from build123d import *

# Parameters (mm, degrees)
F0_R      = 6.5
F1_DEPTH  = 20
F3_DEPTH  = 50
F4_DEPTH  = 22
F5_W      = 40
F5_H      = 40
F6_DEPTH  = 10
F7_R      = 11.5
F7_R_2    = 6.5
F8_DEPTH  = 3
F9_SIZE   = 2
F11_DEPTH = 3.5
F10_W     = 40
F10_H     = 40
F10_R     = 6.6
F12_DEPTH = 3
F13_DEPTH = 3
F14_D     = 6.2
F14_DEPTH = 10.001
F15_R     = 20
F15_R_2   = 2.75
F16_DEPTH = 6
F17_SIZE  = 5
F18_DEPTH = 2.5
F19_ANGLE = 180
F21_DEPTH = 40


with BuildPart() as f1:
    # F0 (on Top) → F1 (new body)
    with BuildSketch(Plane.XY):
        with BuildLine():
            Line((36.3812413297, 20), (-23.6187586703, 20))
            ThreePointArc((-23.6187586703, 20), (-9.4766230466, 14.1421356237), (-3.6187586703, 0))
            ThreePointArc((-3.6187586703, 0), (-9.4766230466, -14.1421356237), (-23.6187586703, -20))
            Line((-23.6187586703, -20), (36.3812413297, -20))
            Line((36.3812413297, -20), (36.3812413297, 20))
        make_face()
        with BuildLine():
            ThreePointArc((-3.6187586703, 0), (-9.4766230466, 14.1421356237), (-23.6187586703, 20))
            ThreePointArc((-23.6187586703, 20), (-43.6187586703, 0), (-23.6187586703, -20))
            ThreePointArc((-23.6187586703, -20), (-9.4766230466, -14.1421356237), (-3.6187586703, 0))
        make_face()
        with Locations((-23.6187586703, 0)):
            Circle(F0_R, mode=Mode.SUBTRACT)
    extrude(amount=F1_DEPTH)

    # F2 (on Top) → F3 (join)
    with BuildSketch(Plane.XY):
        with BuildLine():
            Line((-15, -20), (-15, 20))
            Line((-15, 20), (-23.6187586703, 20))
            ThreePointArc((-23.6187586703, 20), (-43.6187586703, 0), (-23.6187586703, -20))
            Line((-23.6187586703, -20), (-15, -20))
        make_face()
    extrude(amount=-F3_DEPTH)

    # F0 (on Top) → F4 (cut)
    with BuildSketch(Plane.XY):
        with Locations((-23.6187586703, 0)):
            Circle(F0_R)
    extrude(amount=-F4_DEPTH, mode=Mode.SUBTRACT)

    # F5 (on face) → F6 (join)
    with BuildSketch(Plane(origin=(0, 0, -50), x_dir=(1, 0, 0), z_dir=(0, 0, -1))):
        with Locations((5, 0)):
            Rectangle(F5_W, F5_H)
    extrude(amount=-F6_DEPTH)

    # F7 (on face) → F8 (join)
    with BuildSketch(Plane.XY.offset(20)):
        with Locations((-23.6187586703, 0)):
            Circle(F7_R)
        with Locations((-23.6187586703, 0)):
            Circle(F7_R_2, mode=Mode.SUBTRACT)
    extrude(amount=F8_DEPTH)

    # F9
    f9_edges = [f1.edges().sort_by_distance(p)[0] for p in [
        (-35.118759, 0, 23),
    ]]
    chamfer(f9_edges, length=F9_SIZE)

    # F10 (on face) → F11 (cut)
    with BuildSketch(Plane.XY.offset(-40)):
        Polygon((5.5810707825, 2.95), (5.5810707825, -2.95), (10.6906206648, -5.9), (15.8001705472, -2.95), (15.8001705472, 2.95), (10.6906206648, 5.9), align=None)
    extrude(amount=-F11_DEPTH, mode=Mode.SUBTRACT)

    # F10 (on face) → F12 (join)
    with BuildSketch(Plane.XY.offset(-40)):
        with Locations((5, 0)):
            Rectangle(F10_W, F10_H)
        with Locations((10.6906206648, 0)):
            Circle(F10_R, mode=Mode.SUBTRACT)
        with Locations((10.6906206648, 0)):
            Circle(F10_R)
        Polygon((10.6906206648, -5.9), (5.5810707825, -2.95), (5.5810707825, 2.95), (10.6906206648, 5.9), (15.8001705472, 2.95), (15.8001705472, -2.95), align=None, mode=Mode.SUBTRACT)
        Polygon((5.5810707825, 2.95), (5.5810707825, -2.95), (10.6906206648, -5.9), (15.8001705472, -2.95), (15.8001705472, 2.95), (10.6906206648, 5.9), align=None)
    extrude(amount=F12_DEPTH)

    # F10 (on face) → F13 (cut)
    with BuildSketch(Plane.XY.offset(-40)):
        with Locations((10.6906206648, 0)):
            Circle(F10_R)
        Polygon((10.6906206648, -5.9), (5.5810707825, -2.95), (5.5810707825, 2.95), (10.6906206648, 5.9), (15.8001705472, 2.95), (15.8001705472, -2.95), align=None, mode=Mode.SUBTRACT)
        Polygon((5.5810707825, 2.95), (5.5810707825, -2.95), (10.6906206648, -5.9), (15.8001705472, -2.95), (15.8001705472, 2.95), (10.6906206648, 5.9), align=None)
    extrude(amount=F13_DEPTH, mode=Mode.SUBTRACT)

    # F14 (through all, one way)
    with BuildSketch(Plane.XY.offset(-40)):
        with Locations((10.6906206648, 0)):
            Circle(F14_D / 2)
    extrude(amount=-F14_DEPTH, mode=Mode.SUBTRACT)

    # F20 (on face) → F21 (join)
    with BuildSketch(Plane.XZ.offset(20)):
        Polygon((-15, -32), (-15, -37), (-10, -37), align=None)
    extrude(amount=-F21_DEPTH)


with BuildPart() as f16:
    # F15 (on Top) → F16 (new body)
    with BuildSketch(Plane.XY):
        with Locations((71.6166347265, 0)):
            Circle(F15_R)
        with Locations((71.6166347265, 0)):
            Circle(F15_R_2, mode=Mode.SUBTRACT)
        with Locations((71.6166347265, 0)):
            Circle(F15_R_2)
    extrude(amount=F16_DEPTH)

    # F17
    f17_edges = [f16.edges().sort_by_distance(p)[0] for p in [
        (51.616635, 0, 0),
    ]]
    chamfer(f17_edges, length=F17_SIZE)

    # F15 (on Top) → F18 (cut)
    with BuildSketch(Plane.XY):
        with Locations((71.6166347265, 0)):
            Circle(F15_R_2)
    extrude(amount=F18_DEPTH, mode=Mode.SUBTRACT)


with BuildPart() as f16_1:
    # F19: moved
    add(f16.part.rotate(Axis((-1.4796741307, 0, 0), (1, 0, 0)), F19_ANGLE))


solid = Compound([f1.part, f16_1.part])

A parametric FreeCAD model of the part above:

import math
import FreeCAD as App
import Part
import Sketcher

V = App.Vector
Q = App.Units.Quantity


def edges_at(feature, points):
    """Names of the edges that pass closest to the given points."""
    edges = feature.Shape.Edges
    near = lambda p: min(range(len(edges)), key=lambda i: edges[i].distToShape(Part.Vertex(*p))[0])
    return sorted({f"Edge{near(p) + 1}" for p in points})


def add_polygon(sketch, points):
    """Adds a closed chain of lines whose ends are joined by coincident constraints."""
    first, n = sketch.GeometryCount, len(points)
    for a, b in zip(points, points[1:] + points[:1]):
        sketch.addGeometry(Part.LineSegment(App.Vector(*a, 0), App.Vector(*b, 0)), False)
    for i in range(n):
        sketch.addConstraint(Sketcher.Constraint("Coincident", first + i, 2, first + (i + 1) % n, 1))

doc = App.newDocument("Part")
body = doc.addObject("PartDesign::Body", "Body")

# Sketch on XY plane
sketch1 = doc.addObject("Sketcher::SketchObject", "Sketch")
body.addObject(sketch1)
sketch1.AttachmentSupport = (doc.XY_Plane, [""])
sketch1.MapMode = "FlatFace"
sketch1.addGeometry(Part.LineSegment(V(36, 20, 0), V(-24, 20, 0)), False)
sketch1.addGeometry(Part.ArcOfCircle(Part.Circle(V(-24, 0, 0), V(0, 0, 1), 20), math.radians(90), math.radians(270)), False)
sketch1.addGeometry(Part.LineSegment(V(-24, -20, 0), V(36, -20, 0)), False)
sketch1.addGeometry(Part.LineSegment(V(36, -20, 0), V(36, 20, 0)), False)
sketch1.addGeometry(Part.Circle(V(-24, 0, 0), V(0, 0, 1), 6), False)
sketch1.addConstraint(Sketcher.Constraint("Tangent", 0, 2, 1, 1))
sketch1.addConstraint(Sketcher.Constraint("Tangent", 1, 2, 2, 1))
sketch1.addConstraint(Sketcher.Constraint("Coincident", 2, 2, 3, 1))
sketch1.addConstraint(Sketcher.Constraint("Coincident", 3, 2, 0, 1))
sketch1.addConstraint(Sketcher.Constraint("Horizontal", 0))
sketch1.addConstraint(Sketcher.Constraint("Horizontal", 2))
sketch1.addConstraint(Sketcher.Constraint("Vertical", 3))
sketch1.addConstraint(Sketcher.Constraint("Coincident", 4, 3, 1, 3))
sketch1.addConstraint(Sketcher.Constraint("PointOnObject", 1, 3, -1))
sketch1.addConstraint(Sketcher.Constraint("Diameter", 4, Q("13 mm")))
sketch1.addConstraint(Sketcher.Constraint("Radius", 1, Q("20 mm")))
sketch1.addConstraint(Sketcher.Constraint("DistanceX", 0, 2, 0, 1, Q("60 mm")))
sketch1.addConstraint(Sketcher.Constraint("DistanceX", 1, 3, -1, 1, Q("23.618759 mm")))
pad1 = doc.addObject("PartDesign::Pad", "Pad")
body.addObject(pad1)
pad1.Profile = sketch1
pad1.Length = 20

# Sketch on XY plane
sketch2 = doc.addObject("Sketcher::SketchObject", "Sketch001")
body.addObject(sketch2)
sketch2.AttachmentSupport = (doc.XY_Plane, [""])
sketch2.MapMode = "FlatFace"
sketch2.addGeometry(Part.LineSegment(V(-15, -20, 0), V(-15, 20, 0)), False)
sketch2.addGeometry(Part.LineSegment(V(-15, 20, 0), V(-24, 20, 0)), False)
sketch2.addGeometry(Part.ArcOfCircle(Part.Circle(V(-24, 0, 0), V(0, 0, 1), 20), math.radians(90), math.radians(270)), False)
sketch2.addGeometry(Part.LineSegment(V(-24, -20, 0), V(-15, -20, 0)), False)
sketch2.addConstraint(Sketcher.Constraint("Coincident", 0, 2, 1, 1))
sketch2.addConstraint(Sketcher.Constraint("Tangent", 1, 2, 2, 1))
sketch2.addConstraint(Sketcher.Constraint("Tangent", 2, 2, 3, 1))
sketch2.addConstraint(Sketcher.Constraint("Coincident", 3, 2, 0, 1))
sketch2.addConstraint(Sketcher.Constraint("Vertical", 0))
sketch2.addConstraint(Sketcher.Constraint("Horizontal", 1))
sketch2.addConstraint(Sketcher.Constraint("Horizontal", 3))
sketch2.addConstraint(Sketcher.Constraint("PointOnObject", 2, 3, -1))
sketch2.addConstraint(Sketcher.Constraint("Radius", 2, Q("20 mm")))
sketch2.addConstraint(Sketcher.Constraint("DistanceX", 0, 2, -1, 1, Q("15 mm")))
sketch2.addConstraint(Sketcher.Constraint("DistanceX", 1, 2, 1, 1, Q("8.618759 mm")))
pad2 = doc.addObject("PartDesign::Pad", "Pad001")
body.addObject(pad2)
pad2.Profile = sketch2
pad2.Length = 50
pad2.Reversed = True

# Sketch on XY plane
sketch3 = doc.addObject("Sketcher::SketchObject", "Sketch002")
body.addObject(sketch3)
sketch3.AttachmentSupport = (doc.XY_Plane, [""])
sketch3.MapMode = "FlatFace"
sketch3.addGeometry(Part.Circle(V(-24, 0, 0), V(0, 0, 1), 6), False)
sketch3.addConstraint(Sketcher.Constraint("PointOnObject", 0, 3, -1))
sketch3.addConstraint(Sketcher.Constraint("Diameter", 0, Q("13 mm")))
sketch3.addConstraint(Sketcher.Constraint("DistanceX", 0, 3, -1, 1, Q("23.618759 mm")))
pocket1 = doc.addObject("PartDesign::Pocket", "Pocket")
body.addObject(pocket1)
pocket1.Profile = sketch3
pocket1.Length = 22

# Sketch on XY plane
sketch4 = doc.addObject("Sketcher::SketchObject", "Sketch003")
body.addObject(sketch4)
sketch4.AttachmentSupport = (doc.XY_Plane, [""])
sketch4.MapMode = "FlatFace"
sketch4.AttachmentOffset = App.Placement(V(0, 0, -50), App.Rotation())
add_polygon(sketch4, [(-15, -20), (-15, 20), (25, 20), (25, -20)])  # lines 0-3
sketch4.addConstraint(Sketcher.Constraint("Vertical", 0))
sketch4.addConstraint(Sketcher.Constraint("Horizontal", 1))
sketch4.addConstraint(Sketcher.Constraint("Vertical", 2))
sketch4.addConstraint(Sketcher.Constraint("Horizontal", 3))
sketch4.addConstraint(Sketcher.Constraint("Equal", 3, 0))
sketch4.addConstraint(Sketcher.Constraint("DistanceX", 1, 1, 1, 2, Q("40 mm")))
sketch4.addConstraint(Sketcher.Constraint("DistanceX", 0, 2, -1, 1, Q("15 mm")))
sketch4.addConstraint(Sketcher.Constraint("DistanceY", -1, 1, 0, 2, Q("20 mm")))
pad3 = doc.addObject("PartDesign::Pad", "Pad002")
body.addObject(pad3)
pad3.Profile = sketch4
pad3.Length = 10

# Sketch on XY plane
sketch5 = doc.addObject("Sketcher::SketchObject", "Sketch004")
body.addObject(sketch5)
sketch5.AttachmentSupport = (doc.XY_Plane, [""])
sketch5.MapMode = "FlatFace"
sketch5.AttachmentOffset = App.Placement(V(0, 0, 20), App.Rotation())
sketch5.addGeometry(Part.Circle(V(-24, 0, 0), V(0, 0, 1), 12), False)
sketch5.addGeometry(Part.Circle(V(-24, 0, 0), V(0, 0, 1), 6), False)
sketch5.addConstraint(Sketcher.Constraint("Coincident", 1, 3, 0, 3))
sketch5.addConstraint(Sketcher.Constraint("PointOnObject", 0, 3, -1))
sketch5.addConstraint(Sketcher.Constraint("Diameter", 0, Q("23 mm")))
sketch5.addConstraint(Sketcher.Constraint("Diameter", 1, Q("13 mm")))
sketch5.addConstraint(Sketcher.Constraint("DistanceX", 0, 3, -1, 1, Q("23.618759 mm")))
pad4 = doc.addObject("PartDesign::Pad", "Pad003")
body.addObject(pad4)
pad4.Profile = sketch5
pad4.Length = 3
doc.recompute()

chamfer = doc.addObject("PartDesign::Chamfer", "Chamfer")
body.addObject(chamfer)
chamfer.Base = (pad4, edges_at(pad4, [(-35.119, 0, 23)]))
chamfer.Size = 2

# Sketch on XY plane
sketch6 = doc.addObject("Sketcher::SketchObject", "Sketch005")
body.addObject(sketch6)
sketch6.AttachmentSupport = (doc.XY_Plane, [""])
sketch6.MapMode = "FlatFace"
sketch6.AttachmentOffset = App.Placement(V(0, 0, -40), App.Rotation())
add_polygon(sketch6, [(6, 3), (6, -3), (11, -6), (16, -3), (16, 3), (11, 6)])  # lines 0-5
sketch6.addConstraint(Sketcher.Constraint("Vertical", 0))
sketch6.addConstraint(Sketcher.Constraint("Vertical", 3))
sketch6.addConstraint(Sketcher.Constraint("Symmetric", 1, 2, 4, 2, -1))
sketch6.addConstraint(Sketcher.Constraint("Parallel", 1, 4))
sketch6.addConstraint(Sketcher.Constraint("Parallel", 2, 5))
sketch6.addConstraint(Sketcher.Constraint("Horizontal", 0, 2, 2, 2))
sketch6.addConstraint(Sketcher.Constraint("Horizontal", 3, 2, 5, 2))
sketch6.addConstraint(Sketcher.Constraint("Angle", 1, Q("-30 deg")))
sketch6.addConstraint(Sketcher.Constraint("DistanceY", 0, 2, 0, 1, Q("5.9 mm")))
sketch6.addConstraint(Sketcher.Constraint("Distance", 1, Q("5.9 mm")))
sketch6.addConstraint(Sketcher.Constraint("DistanceX", -1, 1, 0, 2, Q("5.581071 mm")))
pocket2 = doc.addObject("PartDesign::Pocket", "Pocket001")
body.addObject(pocket2)
pocket2.Profile = sketch6
pocket2.Length = 3.5

# Sketch on XY plane
sketch7 = doc.addObject("Sketcher::SketchObject", "Sketch006")
body.addObject(sketch7)
sketch7.AttachmentSupport = (doc.XY_Plane, [""])
sketch7.MapMode = "FlatFace"
sketch7.AttachmentOffset = App.Placement(V(0, 0, -40), App.Rotation())
add_polygon(sketch7, [(-15, 20), (-15, -20), (25, -20), (25, 20)])  # lines 0-3
sketch7.addConstraint(Sketcher.Constraint("Vertical", 0))
sketch7.addConstraint(Sketcher.Constraint("Horizontal", 1))
sketch7.addConstraint(Sketcher.Constraint("Vertical", 2))
sketch7.addConstraint(Sketcher.Constraint("Horizontal", 3))
sketch7.addConstraint(Sketcher.Constraint("Equal", 3, 0))
sketch7.addConstraint(Sketcher.Constraint("DistanceX", 1, 1, 1, 2, Q("40 mm")))
sketch7.addConstraint(Sketcher.Constraint("DistanceX", 0, 2, -1, 1, Q("15 mm")))
sketch7.addConstraint(Sketcher.Constraint("DistanceY", 0, 2, -1, 1, Q("20 mm")))
pad5 = doc.addObject("PartDesign::Pad", "Pad004")
body.addObject(pad5)
pad5.Profile = sketch7
pad5.Length = 3

# Sketch on XY plane
sketch8 = doc.addObject("Sketcher::SketchObject", "Sketch007")
body.addObject(sketch8)
sketch8.AttachmentSupport = (doc.XY_Plane, [""])
sketch8.MapMode = "FlatFace"
sketch8.AttachmentOffset = App.Placement(V(0, 0, -40), App.Rotation())
sketch8.addGeometry(Part.Circle(V(11, 0, 0), V(0, 0, 1), 7), False)
sketch8.addConstraint(Sketcher.Constraint("PointOnObject", 0, 3, -1))
sketch8.addConstraint(Sketcher.Constraint("Diameter", 0, Q("13.2 mm")))
sketch8.addConstraint(Sketcher.Constraint("DistanceX", -1, 1, 0, 3, Q("10.690621 mm")))
pocket3 = doc.addObject("PartDesign::Pocket", "Pocket002")
body.addObject(pocket3)
pocket3.Profile = sketch8
pocket3.Length = 3
pocket3.Reversed = True

# Sketch on XY plane
sketch9 = doc.addObject("Sketcher::SketchObject", "Sketch008")
body.addObject(sketch9)
sketch9.AttachmentSupport = (doc.XY_Plane, [""])
sketch9.MapMode = "FlatFace"
sketch9.AttachmentOffset = App.Placement(V(0, 0, -40), App.Rotation())
sketch9.addGeometry(Part.Circle(V(10.7, 0, 0), V(0, 0, 1), 3.1), False)
sketch9.addConstraint(Sketcher.Constraint("PointOnObject", 0, 3, -1))
sketch9.addConstraint(Sketcher.Constraint("Diameter", 0, Q("6.2 mm")))
sketch9.addConstraint(Sketcher.Constraint("DistanceX", -1, 1, 0, 3, Q("10.690621 mm")))
pocket4 = doc.addObject("PartDesign::Pocket", "Pocket003")
body.addObject(pocket4)
pocket4.Profile = sketch9
pocket4.Type = "ThroughAll"

# Sketch on XZ plane
sketch10 = doc.addObject("Sketcher::SketchObject", "Sketch009")
body.addObject(sketch10)
sketch10.AttachmentSupport = (doc.XZ_Plane, [""])
sketch10.MapMode = "FlatFace"
sketch10.AttachmentOffset = App.Placement(V(0, 0, 20), App.Rotation())
add_polygon(sketch10, [(-15, -32), (-15, -37), (-10, -37)])  # lines 0-2
sketch10.addConstraint(Sketcher.Constraint("Vertical", 0))
sketch10.addConstraint(Sketcher.Constraint("Horizontal", 1))
sketch10.addConstraint(Sketcher.Constraint("Equal", 1, 0))
sketch10.addConstraint(Sketcher.Constraint("DistanceX", 1, 1, 1, 2, Q("5 mm")))
sketch10.addConstraint(Sketcher.Constraint("DistanceX", 0, 2, -1, 1, Q("15 mm")))
sketch10.addConstraint(Sketcher.Constraint("DistanceY", 0, 2, -1, 1, Q("37 mm")))
pad6 = doc.addObject("PartDesign::Pad", "Pad005")
body.addObject(pad6)
pad6.Profile = sketch10
pad6.Length = 40
pad6.Reversed = True
body2 = doc.addObject("PartDesign::Body", "Body001")

# Sketch on XY plane
sketch11 = doc.addObject("Sketcher::SketchObject", "Sketch010")
body2.addObject(sketch11)
sketch11.AttachmentSupport = (doc.getObject("XY_Plane001"), [""])
sketch11.MapMode = "FlatFace"
sketch11.addGeometry(Part.Circle(V(72, 0, 0), V(0, 0, 1), 20), False)
sketch11.addConstraint(Sketcher.Constraint("PointOnObject", 0, 3, -1))
sketch11.addConstraint(Sketcher.Constraint("Diameter", 0, Q("40 mm")))
sketch11.addConstraint(Sketcher.Constraint("DistanceX", -1, 1, 0, 3, Q("71.616635 mm")))
pad7 = doc.addObject("PartDesign::Pad", "Pad006")
body2.addObject(pad7)
pad7.Profile = sketch11
pad7.Length = 6
doc.recompute()

chamfer2 = doc.addObject("PartDesign::Chamfer", "Chamfer001")
body2.addObject(chamfer2)
chamfer2.Base = (pad7, edges_at(pad7, [(51.617, 0, 0)]))
chamfer2.Size = 5

# Sketch on XY plane
sketch12 = doc.addObject("Sketcher::SketchObject", "Sketch011")
body2.addObject(sketch12)
sketch12.AttachmentSupport = (doc.getObject("XY_Plane001"), [""])
sketch12.MapMode = "FlatFace"
sketch12.addGeometry(Part.Circle(V(71.6, 0, 0), V(0, 0, 1), 2.8), False)
sketch12.addConstraint(Sketcher.Constraint("PointOnObject", 0, 3, -1))
sketch12.addConstraint(Sketcher.Constraint("Diameter", 0, Q("5.5 mm")))
sketch12.addConstraint(Sketcher.Constraint("DistanceX", -1, 1, 0, 3, Q("71.616635 mm")))
pocket5 = doc.addObject("PartDesign::Pocket", "Pocket004")
body2.addObject(pocket5)
pocket5.Profile = sketch12
pocket5.Length = 2.5
pocket5.Reversed = True
body3 = doc.addObject("PartDesign::Body", "Body002")
doc.recompute()

body2.Placement = App.Placement(V(0, 0, 0), App.Rotation(V(1, 0, 0), 180))
boolean = doc.addObject("PartDesign::Boolean", "Boolean")
body3.addObject(boolean)
boolean.Type = "Fuse"
boolean.addObjects([body2])

doc.recompute()
